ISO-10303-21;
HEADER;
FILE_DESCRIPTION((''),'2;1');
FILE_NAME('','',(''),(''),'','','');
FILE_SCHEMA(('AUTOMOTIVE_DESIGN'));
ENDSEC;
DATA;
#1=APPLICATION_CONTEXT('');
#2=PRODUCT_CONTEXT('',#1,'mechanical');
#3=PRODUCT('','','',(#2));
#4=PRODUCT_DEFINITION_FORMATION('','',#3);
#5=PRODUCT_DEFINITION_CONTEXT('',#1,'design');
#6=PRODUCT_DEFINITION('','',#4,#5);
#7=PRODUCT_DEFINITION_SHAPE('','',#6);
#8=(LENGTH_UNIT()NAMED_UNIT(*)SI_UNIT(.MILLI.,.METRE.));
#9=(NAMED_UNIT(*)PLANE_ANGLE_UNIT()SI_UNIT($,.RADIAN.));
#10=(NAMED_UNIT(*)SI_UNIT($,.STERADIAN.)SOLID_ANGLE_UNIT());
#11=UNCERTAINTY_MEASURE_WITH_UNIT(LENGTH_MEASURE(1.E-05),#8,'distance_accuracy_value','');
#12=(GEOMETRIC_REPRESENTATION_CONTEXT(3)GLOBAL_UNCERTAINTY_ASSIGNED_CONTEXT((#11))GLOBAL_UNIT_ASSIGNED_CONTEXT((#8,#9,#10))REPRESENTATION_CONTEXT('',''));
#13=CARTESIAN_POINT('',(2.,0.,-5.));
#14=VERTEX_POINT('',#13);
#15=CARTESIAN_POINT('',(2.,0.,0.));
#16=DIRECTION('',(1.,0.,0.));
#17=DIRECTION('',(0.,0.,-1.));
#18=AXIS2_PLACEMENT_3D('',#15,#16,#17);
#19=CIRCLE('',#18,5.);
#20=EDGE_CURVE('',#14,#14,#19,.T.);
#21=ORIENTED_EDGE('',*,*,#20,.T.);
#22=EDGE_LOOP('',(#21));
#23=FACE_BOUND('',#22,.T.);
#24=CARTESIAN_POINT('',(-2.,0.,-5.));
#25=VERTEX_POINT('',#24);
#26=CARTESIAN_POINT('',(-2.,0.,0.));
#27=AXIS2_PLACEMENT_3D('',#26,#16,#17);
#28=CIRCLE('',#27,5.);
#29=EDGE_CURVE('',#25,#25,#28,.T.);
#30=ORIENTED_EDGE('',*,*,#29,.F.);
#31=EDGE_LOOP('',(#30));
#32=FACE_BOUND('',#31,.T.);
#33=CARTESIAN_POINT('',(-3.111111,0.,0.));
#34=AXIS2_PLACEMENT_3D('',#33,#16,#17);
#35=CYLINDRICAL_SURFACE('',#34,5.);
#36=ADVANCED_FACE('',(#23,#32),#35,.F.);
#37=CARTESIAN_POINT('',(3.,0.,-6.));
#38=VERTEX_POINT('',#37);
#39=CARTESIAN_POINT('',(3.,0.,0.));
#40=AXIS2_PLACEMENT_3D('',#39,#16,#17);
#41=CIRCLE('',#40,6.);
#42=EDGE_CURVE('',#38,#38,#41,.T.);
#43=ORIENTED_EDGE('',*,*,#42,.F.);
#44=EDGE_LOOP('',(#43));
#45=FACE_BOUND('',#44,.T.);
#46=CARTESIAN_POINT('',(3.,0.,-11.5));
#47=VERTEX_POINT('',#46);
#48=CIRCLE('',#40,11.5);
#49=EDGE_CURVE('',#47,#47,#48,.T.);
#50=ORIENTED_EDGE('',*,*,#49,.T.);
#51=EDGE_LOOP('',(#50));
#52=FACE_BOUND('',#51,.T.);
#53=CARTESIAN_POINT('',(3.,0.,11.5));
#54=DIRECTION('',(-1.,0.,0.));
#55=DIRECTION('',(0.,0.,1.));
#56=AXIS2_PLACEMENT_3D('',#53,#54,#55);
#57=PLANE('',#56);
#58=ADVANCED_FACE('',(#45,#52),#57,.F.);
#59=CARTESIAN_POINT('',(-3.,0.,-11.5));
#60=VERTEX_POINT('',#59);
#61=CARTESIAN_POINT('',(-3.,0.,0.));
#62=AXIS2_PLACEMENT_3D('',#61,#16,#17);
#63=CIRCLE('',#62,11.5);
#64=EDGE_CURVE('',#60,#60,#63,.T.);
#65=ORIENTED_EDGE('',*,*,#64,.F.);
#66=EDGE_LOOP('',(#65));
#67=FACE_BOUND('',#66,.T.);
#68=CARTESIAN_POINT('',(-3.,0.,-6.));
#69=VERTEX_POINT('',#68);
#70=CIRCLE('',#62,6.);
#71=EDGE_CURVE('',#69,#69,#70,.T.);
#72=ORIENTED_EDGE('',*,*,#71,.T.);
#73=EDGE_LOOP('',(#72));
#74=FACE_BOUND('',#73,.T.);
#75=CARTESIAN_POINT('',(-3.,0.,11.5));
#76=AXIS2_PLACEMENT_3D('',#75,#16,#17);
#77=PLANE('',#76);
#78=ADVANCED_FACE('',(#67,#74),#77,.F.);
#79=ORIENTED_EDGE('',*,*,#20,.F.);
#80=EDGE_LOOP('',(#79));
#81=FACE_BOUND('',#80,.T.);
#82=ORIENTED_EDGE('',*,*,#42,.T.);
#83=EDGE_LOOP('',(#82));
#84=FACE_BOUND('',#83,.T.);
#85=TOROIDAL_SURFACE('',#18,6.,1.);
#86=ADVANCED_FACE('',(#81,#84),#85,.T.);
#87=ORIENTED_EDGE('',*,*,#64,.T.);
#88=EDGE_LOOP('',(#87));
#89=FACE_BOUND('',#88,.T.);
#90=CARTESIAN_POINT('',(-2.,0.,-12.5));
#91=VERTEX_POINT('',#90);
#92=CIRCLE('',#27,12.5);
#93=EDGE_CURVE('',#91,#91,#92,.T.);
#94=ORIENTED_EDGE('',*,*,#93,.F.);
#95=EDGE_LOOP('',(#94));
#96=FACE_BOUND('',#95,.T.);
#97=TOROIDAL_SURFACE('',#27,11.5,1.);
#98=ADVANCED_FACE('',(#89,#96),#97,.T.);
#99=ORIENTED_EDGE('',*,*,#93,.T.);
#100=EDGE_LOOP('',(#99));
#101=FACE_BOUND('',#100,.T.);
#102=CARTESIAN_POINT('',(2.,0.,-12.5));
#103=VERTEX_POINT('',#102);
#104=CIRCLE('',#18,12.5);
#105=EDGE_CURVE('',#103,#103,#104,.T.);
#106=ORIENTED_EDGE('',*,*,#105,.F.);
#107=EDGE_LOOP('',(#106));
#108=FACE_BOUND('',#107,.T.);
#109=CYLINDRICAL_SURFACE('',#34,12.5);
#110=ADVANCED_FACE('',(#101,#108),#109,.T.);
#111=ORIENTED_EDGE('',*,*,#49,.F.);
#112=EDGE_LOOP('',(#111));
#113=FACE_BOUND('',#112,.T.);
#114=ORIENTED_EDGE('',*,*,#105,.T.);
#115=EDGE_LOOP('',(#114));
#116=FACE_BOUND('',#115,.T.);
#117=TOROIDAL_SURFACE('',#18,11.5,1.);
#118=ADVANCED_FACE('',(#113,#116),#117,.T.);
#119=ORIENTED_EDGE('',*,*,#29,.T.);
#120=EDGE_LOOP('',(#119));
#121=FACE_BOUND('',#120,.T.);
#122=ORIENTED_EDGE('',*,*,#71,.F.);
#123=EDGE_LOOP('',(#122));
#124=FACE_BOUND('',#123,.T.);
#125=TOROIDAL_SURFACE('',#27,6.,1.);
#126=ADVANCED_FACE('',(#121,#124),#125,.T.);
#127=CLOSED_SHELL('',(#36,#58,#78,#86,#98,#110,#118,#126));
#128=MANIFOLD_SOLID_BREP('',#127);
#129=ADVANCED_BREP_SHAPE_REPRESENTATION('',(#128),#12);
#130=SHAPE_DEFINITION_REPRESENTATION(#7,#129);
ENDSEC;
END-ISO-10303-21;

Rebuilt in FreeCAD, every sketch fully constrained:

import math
import FreeCAD as App
import Part
import Sketcher
from FreeCAD import Vector
Q = App.Units.Quantity

doc = App.newDocument("Part")
body = doc.addObject("PartDesign::Body", "Body")

# Sketch on XZ plane
sketch1 = doc.addObject("Sketcher::SketchObject", "Sketch")
body.addObject(sketch1)
sketch1.AttachmentSupport = (doc.XZ_Plane, [""])
sketch1.MapMode = "FlatFace"
sketch1.addGeometry([
    Part.LineSegment(Vector(-2, 12.5, 0), Vector(2, 12.5, 0)),  # 0
    Part.ArcOfCircle(Part.Circle(Vector(2, 11.5, 0), Vector(0, 0, 1), 1), math.radians(0), math.radians(90)),  # 1
    Part.LineSegment(Vector(3, 11.5, 0), Vector(3, 6, 0)),  # 2
    Part.ArcOfCircle(Part.Circle(Vector(2, 6, 0), Vector(0, 0, 1), 1), math.radians(-90), math.radians(0)),  # 3
    Part.LineSegment(Vector(2, 5, 0), Vector(-2, 5, 0)),  # 4
    Part.ArcOfCircle(Part.Circle(Vector(-2, 6, 0), Vector(0, 0, 1), 1), math.radians(-180), math.radians(-90)),  # 5
    Part.LineSegment(Vector(-3, 6, 0), Vector(-3, 11.5, 0)),  # 6
    Part.ArcOfCircle(Part.Circle(Vector(-2, 11.5, 0), Vector(0, 0, 1), 1), math.radians(90), math.radians(180)),  # 7
], False)
sketch1.addConstraint([
    Sketcher.Constraint("Tangent", 0, 2, 1, 2),
    Sketcher.Constraint("Tangent", 1, 1, 2, 1),
    Sketcher.Constraint("Tangent", 2, 2, 3, 2),
    Sketcher.Constraint("Tangent", 3, 1, 4, 1),
    Sketcher.Constraint("Tangent", 4, 2, 5, 2),
    Sketcher.Constraint("Tangent", 5, 1, 6, 1),
    Sketcher.Constraint("Tangent", 6, 2, 7, 2),
    Sketcher.Constraint("Tangent", 7, 1, 0, 1),
    Sketcher.Constraint("Horizontal", 0),
    Sketcher.Constraint("Vertical", 2),
    Sketcher.Constraint("Horizontal", 4),
    Sketcher.Constraint("Vertical", 6),
    Sketcher.Constraint("Equal", 1, 3),
    Sketcher.Constraint("Equal", 3, 5),
    Sketcher.Constraint("Equal", 5, 7),
    Sketcher.Constraint("Radius", 1, Q("1 mm")),
    Sketcher.Constraint("DistanceX", 0, 1, 0, 2, Q("4 mm")),
    Sketcher.Constraint("DistanceY", 2, 2, 2, 1, Q("5.5 mm")),
    Sketcher.Constraint("DistanceX", -1, 1, 1, 3, Q("2 mm")),
    Sketcher.Constraint("DistanceY", -1, 1, 3, 3, Q("6 mm")),
])
revolution = doc.addObject("PartDesign::Revolution", "Revolution")
body.addObject(revolution)
revolution.Profile = sketch1
revolution.ReferenceAxis = (sketch1, ["H_Axis"])
revolution.Angle = 360

doc.recompute()
